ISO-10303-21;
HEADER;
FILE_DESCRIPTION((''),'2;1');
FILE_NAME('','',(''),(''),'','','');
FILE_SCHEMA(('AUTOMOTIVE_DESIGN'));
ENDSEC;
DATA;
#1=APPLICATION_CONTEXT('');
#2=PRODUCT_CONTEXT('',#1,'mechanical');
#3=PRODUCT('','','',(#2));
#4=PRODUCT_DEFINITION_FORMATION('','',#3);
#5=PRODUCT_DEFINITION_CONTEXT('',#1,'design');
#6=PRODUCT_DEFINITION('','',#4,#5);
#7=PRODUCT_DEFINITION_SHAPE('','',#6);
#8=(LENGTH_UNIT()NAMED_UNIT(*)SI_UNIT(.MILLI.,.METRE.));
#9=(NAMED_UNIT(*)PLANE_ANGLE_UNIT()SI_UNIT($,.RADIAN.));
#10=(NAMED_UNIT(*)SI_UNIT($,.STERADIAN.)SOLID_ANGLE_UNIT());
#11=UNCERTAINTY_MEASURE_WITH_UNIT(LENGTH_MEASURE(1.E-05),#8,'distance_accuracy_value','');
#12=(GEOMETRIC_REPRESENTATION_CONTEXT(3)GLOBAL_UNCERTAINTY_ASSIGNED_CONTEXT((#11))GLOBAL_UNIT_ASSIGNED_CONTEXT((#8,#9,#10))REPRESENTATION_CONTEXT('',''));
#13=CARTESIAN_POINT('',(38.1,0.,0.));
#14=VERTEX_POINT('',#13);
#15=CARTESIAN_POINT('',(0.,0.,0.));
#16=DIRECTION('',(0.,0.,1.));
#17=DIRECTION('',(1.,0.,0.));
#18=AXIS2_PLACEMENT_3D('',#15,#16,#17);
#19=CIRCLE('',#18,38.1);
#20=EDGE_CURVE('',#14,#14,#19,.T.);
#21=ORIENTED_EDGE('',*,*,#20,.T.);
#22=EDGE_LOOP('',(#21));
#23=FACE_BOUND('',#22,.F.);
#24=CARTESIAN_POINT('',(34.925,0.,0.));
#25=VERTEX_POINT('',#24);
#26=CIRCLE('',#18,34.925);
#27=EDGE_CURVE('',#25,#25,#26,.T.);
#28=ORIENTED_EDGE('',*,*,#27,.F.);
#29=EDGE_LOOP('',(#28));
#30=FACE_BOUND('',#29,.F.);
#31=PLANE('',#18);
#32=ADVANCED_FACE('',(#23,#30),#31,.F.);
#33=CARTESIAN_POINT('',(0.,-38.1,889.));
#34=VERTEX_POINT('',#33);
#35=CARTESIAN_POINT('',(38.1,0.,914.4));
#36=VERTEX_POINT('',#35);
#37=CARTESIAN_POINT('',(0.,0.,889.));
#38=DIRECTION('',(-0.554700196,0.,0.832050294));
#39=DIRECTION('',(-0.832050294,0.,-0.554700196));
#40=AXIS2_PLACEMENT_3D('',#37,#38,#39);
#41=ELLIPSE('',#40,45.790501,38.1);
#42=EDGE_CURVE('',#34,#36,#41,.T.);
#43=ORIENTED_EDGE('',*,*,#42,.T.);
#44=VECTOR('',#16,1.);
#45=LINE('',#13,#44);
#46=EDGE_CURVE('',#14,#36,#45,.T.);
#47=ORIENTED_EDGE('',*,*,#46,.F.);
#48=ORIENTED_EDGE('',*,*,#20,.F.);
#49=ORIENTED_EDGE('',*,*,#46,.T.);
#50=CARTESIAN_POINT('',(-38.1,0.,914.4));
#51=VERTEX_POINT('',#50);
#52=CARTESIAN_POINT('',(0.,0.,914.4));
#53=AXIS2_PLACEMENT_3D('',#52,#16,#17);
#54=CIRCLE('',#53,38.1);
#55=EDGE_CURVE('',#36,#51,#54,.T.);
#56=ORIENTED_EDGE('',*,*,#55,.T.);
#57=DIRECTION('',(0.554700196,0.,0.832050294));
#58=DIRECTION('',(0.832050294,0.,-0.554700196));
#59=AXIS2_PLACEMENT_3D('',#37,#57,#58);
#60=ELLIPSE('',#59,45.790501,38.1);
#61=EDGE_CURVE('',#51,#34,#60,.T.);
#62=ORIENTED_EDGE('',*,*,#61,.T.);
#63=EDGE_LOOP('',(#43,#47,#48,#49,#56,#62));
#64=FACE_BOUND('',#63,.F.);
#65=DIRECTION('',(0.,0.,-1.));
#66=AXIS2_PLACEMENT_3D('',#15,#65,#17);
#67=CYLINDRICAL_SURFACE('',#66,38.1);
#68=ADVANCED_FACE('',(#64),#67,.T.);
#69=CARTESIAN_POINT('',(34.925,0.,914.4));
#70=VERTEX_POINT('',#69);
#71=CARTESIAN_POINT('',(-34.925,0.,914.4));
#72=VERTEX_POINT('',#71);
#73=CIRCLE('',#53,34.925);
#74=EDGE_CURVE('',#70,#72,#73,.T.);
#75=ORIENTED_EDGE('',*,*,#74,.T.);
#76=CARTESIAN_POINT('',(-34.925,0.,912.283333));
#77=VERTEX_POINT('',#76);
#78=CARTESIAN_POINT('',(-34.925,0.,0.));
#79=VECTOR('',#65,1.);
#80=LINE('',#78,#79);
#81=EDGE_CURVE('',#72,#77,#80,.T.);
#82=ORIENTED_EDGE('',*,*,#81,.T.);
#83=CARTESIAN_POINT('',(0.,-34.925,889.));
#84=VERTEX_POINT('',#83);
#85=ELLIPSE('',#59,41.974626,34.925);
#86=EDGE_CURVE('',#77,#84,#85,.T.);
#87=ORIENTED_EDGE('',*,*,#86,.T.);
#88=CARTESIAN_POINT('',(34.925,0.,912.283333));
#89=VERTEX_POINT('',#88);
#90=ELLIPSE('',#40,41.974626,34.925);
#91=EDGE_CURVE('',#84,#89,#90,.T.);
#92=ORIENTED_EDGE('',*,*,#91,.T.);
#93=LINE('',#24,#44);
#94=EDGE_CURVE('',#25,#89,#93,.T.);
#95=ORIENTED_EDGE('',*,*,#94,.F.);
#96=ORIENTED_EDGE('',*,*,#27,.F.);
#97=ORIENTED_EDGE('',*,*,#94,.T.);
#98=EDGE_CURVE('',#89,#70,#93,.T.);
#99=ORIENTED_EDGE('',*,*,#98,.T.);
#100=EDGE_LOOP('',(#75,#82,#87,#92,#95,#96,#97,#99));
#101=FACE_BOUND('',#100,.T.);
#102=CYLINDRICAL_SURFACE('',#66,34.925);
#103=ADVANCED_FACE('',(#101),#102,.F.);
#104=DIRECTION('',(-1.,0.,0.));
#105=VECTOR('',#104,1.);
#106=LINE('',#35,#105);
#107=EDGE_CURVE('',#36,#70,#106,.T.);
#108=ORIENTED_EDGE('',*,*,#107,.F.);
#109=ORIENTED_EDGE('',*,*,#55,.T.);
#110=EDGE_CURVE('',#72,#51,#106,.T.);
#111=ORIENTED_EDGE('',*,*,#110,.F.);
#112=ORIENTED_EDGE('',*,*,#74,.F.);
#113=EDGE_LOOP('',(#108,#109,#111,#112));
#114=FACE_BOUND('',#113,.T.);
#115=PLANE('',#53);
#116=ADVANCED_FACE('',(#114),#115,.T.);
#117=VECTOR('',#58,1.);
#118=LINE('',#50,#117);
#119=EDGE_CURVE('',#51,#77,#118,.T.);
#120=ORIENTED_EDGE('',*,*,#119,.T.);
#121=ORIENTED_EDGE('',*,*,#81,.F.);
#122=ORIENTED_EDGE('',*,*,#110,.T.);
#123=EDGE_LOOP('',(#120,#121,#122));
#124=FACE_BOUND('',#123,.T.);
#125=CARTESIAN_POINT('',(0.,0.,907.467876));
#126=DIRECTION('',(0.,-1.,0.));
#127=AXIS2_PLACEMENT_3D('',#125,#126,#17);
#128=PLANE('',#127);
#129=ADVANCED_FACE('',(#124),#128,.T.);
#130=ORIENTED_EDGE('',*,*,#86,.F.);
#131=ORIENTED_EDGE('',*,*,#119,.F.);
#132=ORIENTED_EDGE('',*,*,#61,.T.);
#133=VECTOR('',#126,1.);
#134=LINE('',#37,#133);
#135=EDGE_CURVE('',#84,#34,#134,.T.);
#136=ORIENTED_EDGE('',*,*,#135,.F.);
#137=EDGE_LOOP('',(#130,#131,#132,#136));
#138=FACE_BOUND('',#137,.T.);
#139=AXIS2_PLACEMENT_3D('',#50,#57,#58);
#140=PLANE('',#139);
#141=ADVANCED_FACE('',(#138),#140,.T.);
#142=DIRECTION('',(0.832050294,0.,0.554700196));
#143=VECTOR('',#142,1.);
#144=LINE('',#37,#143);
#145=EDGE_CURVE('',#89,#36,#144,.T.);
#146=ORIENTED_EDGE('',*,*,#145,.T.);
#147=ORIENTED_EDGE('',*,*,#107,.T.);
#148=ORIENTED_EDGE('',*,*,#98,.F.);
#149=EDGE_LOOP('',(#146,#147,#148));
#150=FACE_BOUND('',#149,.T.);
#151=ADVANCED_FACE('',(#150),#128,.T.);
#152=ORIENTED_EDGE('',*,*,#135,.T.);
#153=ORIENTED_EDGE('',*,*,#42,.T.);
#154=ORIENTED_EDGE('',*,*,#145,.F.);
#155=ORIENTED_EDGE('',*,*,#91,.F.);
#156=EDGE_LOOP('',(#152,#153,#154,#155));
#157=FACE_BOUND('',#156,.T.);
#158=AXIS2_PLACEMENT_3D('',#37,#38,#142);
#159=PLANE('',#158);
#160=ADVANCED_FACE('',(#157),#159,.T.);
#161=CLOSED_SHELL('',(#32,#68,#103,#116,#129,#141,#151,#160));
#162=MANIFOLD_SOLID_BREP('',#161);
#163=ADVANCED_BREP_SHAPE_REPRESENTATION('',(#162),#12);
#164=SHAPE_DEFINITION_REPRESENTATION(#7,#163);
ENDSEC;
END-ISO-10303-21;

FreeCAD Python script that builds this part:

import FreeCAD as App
import Part
import Sketcher
from FreeCAD import Vector
Q = App.Units.Quantity

doc = App.newDocument("Part")
body = doc.addObject("PartDesign::Body", "Body")

# Sketch on XY plane
sketch1 = doc.addObject("Sketcher::SketchObject", "Sketch")
body.addObject(sketch1)
sketch1.AttachmentSupport = (doc.XY_Plane, [""])
sketch1.MapMode = "FlatFace"
sketch1.addGeometry([
    Part.Circle(Vector(0, 0, 0), Vector(0, 0, 1), 38.1),
    Part.Circle(Vector(0, 0, 0), Vector(0, 0, 1), 34.925),
], False)
sketch1.addConstraint([
    Sketcher.Constraint("Coincident", 0, 3, -1, 1),
    Sketcher.Constraint("Coincident", 1, 3, -1, 1),
    Sketcher.Constraint("Diameter", 0, Q("3 in")),
    Sketcher.Constraint("Diameter", 1, Q("2.75 in")),
])
pad1 = doc.addObject("PartDesign::Pad", "Pad")
body.addObject(pad1)
pad1.Profile = sketch1
pad1.Length = Q("36 in")

# Sketch on XZ plane
sketch2 = doc.addObject("Sketcher::SketchObject", "Sketch001")
body.addObject(sketch2)
sketch2.AttachmentSupport = (doc.XZ_Plane, [""])
sketch2.MapMode = "FlatFace"
sketch2.addGeometry([
    Part.LineSegment(Vector(38.1, 914.4, 0), Vector(-38.1, 914.4, 0)),
    Part.LineSegment(Vector(-38.1, 914.4, 0), Vector(0, 889, 0)),
    Part.LineSegment(Vector(0, 889, 0), Vector(38.1, 914.4, 0)),
], False)
sketch2.addConstraint([
    Sketcher.Constraint("Coincident", 0, 2, 1, 1),
    Sketcher.Constraint("Coincident", 1, 2, 2, 1),
    Sketcher.Constraint("Coincident", 2, 2, 0, 1),
    Sketcher.Constraint("Horizontal", 0),
    Sketcher.Constraint("PointOnObject", 1, 2, -2),
    Sketcher.Constraint("Equal", 1, 2),
    Sketcher.Constraint("DistanceX", 0, 2, 0, 1, Q("3 in")),
    Sketcher.Constraint("DistanceY", -1, 1, 0, 2, Q("36 in")),
    Sketcher.Constraint("DistanceY", -1, 1, 1, 2, Q("35 in")),
])
pocket1 = doc.addObject("PartDesign::Pocket", "Pocket")
body.addObject(pocket1)
pocket1.Profile = sketch2
pocket1.Type = "ThroughAll"
pocket1.Reversed = True

doc.recompute()
